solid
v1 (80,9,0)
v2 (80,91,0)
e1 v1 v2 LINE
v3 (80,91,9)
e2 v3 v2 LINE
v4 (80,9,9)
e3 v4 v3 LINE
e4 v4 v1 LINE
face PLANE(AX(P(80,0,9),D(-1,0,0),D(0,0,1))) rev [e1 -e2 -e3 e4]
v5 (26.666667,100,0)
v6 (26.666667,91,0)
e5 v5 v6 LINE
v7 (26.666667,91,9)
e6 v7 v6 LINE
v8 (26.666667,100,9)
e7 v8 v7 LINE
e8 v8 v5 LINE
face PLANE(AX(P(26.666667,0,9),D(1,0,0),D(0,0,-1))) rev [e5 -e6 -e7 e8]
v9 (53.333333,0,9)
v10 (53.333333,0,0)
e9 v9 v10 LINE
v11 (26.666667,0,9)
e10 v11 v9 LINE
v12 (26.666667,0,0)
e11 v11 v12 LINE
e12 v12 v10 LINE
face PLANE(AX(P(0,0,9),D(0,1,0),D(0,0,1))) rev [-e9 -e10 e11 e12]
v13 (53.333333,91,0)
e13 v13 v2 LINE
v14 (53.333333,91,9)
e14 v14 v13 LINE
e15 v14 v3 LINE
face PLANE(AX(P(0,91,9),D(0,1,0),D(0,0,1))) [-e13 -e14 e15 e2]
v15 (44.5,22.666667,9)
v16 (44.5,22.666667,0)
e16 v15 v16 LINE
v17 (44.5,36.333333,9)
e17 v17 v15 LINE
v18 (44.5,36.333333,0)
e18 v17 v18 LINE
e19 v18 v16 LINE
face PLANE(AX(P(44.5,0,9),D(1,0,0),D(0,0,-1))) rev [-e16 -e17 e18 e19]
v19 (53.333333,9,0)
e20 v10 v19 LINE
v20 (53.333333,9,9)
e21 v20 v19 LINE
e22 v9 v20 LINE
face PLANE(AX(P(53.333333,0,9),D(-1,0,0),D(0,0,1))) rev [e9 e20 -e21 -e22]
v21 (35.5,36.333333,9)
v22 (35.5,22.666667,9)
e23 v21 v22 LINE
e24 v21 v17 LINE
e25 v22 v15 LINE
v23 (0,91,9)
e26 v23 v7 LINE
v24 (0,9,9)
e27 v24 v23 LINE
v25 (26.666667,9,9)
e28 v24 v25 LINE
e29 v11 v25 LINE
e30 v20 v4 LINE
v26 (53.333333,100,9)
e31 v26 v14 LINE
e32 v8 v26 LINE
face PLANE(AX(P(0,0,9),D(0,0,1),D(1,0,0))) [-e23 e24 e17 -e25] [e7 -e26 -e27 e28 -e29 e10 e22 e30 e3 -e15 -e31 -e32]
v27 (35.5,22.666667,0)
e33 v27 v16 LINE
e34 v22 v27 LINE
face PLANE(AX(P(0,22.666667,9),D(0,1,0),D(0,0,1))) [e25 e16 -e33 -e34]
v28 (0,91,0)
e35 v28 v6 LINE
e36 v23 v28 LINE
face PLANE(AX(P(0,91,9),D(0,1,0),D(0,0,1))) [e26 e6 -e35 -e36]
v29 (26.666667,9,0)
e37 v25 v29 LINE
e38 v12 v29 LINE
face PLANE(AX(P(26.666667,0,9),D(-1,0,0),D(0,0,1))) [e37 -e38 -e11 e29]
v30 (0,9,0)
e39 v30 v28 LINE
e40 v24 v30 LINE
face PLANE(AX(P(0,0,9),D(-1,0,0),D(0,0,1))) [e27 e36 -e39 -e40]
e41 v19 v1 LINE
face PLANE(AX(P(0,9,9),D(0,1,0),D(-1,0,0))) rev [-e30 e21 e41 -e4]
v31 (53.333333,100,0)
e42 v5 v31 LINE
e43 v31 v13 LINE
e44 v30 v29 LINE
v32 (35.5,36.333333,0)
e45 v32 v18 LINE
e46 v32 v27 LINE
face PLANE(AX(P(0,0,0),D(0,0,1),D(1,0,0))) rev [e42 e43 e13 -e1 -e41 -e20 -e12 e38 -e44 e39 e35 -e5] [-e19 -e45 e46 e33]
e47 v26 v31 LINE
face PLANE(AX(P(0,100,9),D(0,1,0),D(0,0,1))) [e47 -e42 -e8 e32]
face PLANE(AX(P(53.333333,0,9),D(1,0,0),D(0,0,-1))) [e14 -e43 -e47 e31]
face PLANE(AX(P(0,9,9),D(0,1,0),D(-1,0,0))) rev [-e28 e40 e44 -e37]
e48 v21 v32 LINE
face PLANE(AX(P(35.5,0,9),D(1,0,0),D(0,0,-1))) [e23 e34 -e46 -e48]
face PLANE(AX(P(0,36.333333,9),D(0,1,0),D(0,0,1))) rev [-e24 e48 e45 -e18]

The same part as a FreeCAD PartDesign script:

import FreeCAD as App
import Part
import Sketcher
Q = App.Units.Quantity


def add_polygon(sketch, points):
    """Adds a closed chain of lines whose ends are joined by coincident constraints."""
    first, n = sketch.GeometryCount, len(points)
    for a, b in zip(points, points[1:] + points[:1]):
        sketch.addGeometry(Part.LineSegment(App.Vector(*a, 0), App.Vector(*b, 0)), False)
    for i in range(n):
        sketch.addConstraint(Sketcher.Constraint("Coincident", first + i, 2, first + (i + 1) % n, 1))

doc = App.newDocument("Part")
body = doc.addObject("PartDesign::Body", "Body")

# Sketch on XY plane
sketch1 = doc.addObject("Sketcher::SketchObject", "Sketch")
body.addObject(sketch1)
sketch1.AttachmentSupport = (doc.XY_Plane, [""])
sketch1.MapMode = "FlatFace"
add_polygon(sketch1, [(26.666667, 9), (26.666667, 0), (53.333333, 0), (53.333333, 9), (80, 9), (80, 91), (53.333333, 91), (53.333333, 100), (26.666667, 100), (26.666667, 91), (0, 91), (0, 9)])  # lines 0-11
add_polygon(sketch1, [(44.5, 22.666667), (35.5, 22.666667), (35.5, 36.333333), (44.5, 36.333333)])  # lines 12-15
sketch1.addConstraint(Sketcher.Constraint("Vertical", 0))
sketch1.addConstraint(Sketcher.Constraint("Horizontal", 1))
sketch1.addConstraint(Sketcher.Constraint("Vertical", 2))
sketch1.addConstraint(Sketcher.Constraint("Horizontal", 3))
sketch1.addConstraint(Sketcher.Constraint("Vertical", 4))
sketch1.addConstraint(Sketcher.Constraint("Horizontal", 5))
sketch1.addConstraint(Sketcher.Constraint("Vertical", 6))
sketch1.addConstraint(Sketcher.Constraint("Horizontal", 7))
sketch1.addConstraint(Sketcher.Constraint("Vertical", 8))
sketch1.addConstraint(Sketcher.Constraint("Horizontal", 9))
sketch1.addConstraint(Sketcher.Constraint("Vertical", 10))
sketch1.addConstraint(Sketcher.Constraint("Horizontal", 11))
sketch1.addConstraint(Sketcher.Constraint("Horizontal", 12))
sketch1.addConstraint(Sketcher.Constraint("Vertical", 13))
sketch1.addConstraint(Sketcher.Constraint("Horizontal", 14))
sketch1.addConstraint(Sketcher.Constraint("Vertical", 15))
sketch1.addConstraint(Sketcher.Constraint("PointOnObject", 0, 2, -1))
sketch1.addConstraint(Sketcher.Constraint("PointOnObject", 9, 2, -2))
sketch1.addConstraint(Sketcher.Constraint("Horizontal", 5, 2, 8, 2))
sketch1.addConstraint(Sketcher.Constraint("Horizontal", 3, 2, 10, 2))
sketch1.addConstraint(Sketcher.Constraint("Vertical", 2, 2, 5, 2))
sketch1.addConstraint(Sketcher.Constraint("Vertical", 0, 2, 7, 2))
sketch1.addConstraint(Sketcher.Constraint("Equal", 1, 3))
sketch1.addConstraint(Sketcher.Constraint("Equal", 7, 9))
sketch1.addConstraint(Sketcher.Constraint("Equal", 14, 0))
sketch1.addConstraint(Sketcher.Constraint("Equal", 2, 6))
sketch1.addConstraint(Sketcher.Constraint("DistanceX", 12, 2, 12, 1, Q("9 mm")))
sketch1.addConstraint(Sketcher.Constraint("DistanceY", 4, 1, 4, 2, Q("82 mm")))
sketch1.addConstraint(Sketcher.Constraint("DistanceX", -1, 1, 3, 2, Q("80 mm")))
sketch1.addConstraint(Sketcher.Constraint("DistanceX", -1, 1, 12, 2, Q("35.5 mm")))
sketch1.addConstraint(Sketcher.Constraint("DistanceY", 13, 1, 13, 2, Q("13.666667 mm")))
sketch1.addConstraint(Sketcher.Constraint("DistanceY", -1, 1, 12, 2, Q("22.666667 mm")))
pad1 = doc.addObject("PartDesign::Pad", "Pad")
body.addObject(pad1)
pad1.Profile = sketch1
pad1.Length = 9

doc.recompute()
